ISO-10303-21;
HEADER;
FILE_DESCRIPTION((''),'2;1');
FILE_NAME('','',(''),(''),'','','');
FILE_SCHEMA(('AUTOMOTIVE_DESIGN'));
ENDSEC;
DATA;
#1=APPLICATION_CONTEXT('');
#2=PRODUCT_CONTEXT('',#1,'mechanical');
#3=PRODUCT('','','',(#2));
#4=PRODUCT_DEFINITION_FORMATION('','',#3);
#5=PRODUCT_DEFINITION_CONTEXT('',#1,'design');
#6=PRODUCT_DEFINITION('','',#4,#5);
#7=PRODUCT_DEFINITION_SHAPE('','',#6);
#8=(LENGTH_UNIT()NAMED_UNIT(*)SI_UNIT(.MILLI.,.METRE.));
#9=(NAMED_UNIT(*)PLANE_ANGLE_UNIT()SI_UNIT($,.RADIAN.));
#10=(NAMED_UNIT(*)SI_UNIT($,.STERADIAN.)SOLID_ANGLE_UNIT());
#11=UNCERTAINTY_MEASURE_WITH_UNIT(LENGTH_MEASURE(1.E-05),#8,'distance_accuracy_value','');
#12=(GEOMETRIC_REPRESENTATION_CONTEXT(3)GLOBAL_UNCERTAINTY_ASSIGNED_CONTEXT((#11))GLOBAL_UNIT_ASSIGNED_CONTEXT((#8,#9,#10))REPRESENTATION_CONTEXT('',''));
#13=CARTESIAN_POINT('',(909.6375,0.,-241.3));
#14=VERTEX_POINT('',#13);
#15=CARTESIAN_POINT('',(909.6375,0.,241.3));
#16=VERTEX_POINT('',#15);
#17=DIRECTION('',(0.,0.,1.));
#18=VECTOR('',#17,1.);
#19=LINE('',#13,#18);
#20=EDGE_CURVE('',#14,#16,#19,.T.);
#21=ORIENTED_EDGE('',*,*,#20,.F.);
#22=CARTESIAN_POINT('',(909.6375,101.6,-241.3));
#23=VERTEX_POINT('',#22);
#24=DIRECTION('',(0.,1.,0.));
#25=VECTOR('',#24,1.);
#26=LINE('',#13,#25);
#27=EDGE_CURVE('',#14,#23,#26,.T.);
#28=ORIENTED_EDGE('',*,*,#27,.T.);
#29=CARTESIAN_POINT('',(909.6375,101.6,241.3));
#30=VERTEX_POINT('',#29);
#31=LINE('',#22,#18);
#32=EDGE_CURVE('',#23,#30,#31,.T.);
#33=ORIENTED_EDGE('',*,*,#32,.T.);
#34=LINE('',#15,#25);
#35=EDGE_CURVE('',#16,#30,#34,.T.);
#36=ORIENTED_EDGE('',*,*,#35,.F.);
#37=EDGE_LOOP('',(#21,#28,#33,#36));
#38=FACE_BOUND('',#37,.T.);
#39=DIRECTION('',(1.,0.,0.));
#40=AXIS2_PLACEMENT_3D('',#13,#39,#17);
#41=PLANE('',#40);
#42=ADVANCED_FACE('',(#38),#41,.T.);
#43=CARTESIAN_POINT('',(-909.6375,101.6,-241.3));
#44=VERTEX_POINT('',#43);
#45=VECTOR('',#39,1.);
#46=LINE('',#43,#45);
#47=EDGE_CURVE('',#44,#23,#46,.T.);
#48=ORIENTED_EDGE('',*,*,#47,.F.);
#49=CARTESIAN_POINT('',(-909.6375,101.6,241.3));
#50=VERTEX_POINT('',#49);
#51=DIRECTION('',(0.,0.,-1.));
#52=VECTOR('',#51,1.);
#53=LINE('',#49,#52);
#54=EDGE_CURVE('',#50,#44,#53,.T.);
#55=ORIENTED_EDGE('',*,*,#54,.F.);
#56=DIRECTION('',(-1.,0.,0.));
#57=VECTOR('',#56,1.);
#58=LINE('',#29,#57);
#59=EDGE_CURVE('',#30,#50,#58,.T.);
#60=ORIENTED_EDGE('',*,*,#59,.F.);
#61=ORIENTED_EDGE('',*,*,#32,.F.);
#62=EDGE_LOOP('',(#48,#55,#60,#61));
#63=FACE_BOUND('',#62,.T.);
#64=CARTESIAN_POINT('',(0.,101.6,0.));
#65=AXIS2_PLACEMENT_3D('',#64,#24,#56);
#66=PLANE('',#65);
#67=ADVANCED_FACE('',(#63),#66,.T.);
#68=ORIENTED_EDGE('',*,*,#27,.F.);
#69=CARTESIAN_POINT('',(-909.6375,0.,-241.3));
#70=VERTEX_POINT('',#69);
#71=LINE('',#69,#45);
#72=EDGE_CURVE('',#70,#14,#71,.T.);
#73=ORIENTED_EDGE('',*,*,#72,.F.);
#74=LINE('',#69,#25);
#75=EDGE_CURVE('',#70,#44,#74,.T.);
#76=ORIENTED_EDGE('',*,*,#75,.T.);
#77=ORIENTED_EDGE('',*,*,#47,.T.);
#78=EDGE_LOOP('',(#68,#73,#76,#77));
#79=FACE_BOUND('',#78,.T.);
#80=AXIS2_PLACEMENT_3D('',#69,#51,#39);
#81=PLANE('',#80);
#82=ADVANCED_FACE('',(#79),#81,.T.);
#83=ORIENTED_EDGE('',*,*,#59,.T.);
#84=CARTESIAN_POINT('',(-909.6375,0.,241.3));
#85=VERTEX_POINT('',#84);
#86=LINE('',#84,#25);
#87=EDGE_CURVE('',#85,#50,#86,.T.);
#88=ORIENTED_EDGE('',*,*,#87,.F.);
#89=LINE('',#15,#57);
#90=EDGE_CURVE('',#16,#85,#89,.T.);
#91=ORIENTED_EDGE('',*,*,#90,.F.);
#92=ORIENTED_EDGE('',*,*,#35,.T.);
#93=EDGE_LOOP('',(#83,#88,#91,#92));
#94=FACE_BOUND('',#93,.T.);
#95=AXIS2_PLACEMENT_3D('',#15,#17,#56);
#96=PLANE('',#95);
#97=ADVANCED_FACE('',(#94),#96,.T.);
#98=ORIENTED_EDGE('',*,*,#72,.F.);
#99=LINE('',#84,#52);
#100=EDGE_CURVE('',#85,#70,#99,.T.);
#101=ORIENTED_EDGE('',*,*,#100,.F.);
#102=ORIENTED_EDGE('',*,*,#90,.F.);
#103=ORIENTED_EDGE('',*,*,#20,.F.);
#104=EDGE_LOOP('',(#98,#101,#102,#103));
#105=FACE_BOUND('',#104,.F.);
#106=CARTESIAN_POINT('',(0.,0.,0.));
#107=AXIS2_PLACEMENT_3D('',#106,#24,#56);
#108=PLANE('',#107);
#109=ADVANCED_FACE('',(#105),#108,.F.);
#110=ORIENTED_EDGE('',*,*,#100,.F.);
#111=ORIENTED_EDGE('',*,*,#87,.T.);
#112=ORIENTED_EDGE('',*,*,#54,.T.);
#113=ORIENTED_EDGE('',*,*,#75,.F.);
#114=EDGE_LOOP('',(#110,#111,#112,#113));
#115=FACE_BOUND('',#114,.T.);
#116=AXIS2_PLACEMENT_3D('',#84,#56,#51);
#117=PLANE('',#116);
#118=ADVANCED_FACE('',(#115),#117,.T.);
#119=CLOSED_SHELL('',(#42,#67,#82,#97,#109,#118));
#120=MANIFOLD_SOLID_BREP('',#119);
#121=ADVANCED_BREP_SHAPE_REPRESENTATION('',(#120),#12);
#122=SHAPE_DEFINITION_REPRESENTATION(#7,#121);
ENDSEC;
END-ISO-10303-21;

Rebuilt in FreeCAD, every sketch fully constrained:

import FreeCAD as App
import Part
import Sketcher
from FreeCAD import Vector
Q = App.Units.Quantity

doc = App.newDocument("Part")
body = doc.addObject("PartDesign::Body", "Body")

sketch1 = body.newObject("Sketcher::SketchObject", "Sketch")
sketch1.AttachmentSupport = (doc.getObject("XZ_Plane"), [""])
sketch1.MapMode = "FlatFace"
sketch1.addGeometry([
    Part.LineSegment(Vector(910, -241, 0), Vector(-910, -241, 0)),
    Part.LineSegment(Vector(-910, -241, 0), Vector(-910, 241, 0)),
    Part.LineSegment(Vector(-910, 241, 0), Vector(910, 241, 0)),
    Part.LineSegment(Vector(910, 241, 0), Vector(910, -241, 0)),
], False)
sketch1.addConstraint([
    Sketcher.Constraint("Coincident", 0, 2, 1, 1),
    Sketcher.Constraint("Coincident", 1, 2, 2, 1),
    Sketcher.Constraint("Coincident", 2, 2, 3, 1),
    Sketcher.Constraint("Coincident", 3, 2, 0, 1),
    Sketcher.Constraint("Horizontal", 0),
    Sketcher.Constraint("Vertical", 1),
    Sketcher.Constraint("Horizontal", 2),
    Sketcher.Constraint("Vertical", 3),
    Sketcher.Constraint("Symmetric", 0, 2, 2, 2, -1, 1),
    Sketcher.Constraint("DistanceY", 1, 1, 1, 2, Q("19 in")),
    Sketcher.Constraint("DistanceX", 0, 2, 0, 1, Q("71.625 in")),
])
pad1 = body.newObject("PartDesign::Pad", "Pad")
pad1.Profile = sketch1
pad1.Length = Q("4 in")
pad1.Reversed = True

doc.recompute()
